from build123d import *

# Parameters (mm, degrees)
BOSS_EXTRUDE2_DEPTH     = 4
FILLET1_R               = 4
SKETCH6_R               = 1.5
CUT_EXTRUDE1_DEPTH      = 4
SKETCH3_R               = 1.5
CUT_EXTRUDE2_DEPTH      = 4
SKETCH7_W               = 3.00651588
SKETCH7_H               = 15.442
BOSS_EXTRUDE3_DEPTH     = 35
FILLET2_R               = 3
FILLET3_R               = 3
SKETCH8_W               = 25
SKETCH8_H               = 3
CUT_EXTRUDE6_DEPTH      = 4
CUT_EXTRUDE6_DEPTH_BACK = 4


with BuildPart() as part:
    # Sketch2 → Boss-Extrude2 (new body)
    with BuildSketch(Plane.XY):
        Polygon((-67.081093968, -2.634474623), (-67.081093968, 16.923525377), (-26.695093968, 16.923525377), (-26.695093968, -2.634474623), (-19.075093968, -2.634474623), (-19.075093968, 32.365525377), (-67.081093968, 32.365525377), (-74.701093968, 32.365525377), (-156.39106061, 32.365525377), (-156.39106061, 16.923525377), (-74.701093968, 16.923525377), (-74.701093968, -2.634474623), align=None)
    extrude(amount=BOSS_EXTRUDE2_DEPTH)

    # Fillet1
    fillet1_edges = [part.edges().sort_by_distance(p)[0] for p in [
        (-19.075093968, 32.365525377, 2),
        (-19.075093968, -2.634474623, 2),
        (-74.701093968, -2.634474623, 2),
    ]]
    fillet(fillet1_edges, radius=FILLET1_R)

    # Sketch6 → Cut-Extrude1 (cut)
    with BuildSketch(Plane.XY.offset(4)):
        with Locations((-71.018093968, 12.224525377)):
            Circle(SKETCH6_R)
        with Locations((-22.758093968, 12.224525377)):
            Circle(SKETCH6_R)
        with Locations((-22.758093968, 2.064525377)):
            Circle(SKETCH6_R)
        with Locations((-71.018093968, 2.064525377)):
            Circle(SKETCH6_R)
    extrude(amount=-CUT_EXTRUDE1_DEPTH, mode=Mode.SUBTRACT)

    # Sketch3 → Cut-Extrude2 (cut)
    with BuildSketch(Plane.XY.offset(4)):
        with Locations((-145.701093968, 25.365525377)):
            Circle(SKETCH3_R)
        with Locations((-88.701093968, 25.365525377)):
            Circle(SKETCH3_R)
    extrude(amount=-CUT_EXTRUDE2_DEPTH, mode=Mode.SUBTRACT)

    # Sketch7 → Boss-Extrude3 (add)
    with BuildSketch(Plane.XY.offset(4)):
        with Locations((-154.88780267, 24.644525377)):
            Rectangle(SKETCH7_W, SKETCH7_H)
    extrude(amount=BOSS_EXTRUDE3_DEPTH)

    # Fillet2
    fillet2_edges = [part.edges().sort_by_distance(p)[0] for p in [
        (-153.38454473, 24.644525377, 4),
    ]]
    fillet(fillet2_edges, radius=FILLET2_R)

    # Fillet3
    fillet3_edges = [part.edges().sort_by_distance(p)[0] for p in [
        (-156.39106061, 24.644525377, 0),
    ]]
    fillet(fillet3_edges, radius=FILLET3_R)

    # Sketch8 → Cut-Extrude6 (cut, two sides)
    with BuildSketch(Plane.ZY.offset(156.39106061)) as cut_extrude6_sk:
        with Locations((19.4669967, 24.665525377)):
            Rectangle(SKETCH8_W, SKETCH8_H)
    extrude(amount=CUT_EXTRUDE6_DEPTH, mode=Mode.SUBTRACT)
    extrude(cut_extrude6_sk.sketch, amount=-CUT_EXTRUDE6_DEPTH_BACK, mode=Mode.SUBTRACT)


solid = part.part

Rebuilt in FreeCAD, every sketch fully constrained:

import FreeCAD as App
import Part
import Sketcher

V = App.Vector
Q = App.Units.Quantity


def edges_at(feature, points):
    """Names of the edges that pass closest to the given points."""
    edges = feature.Shape.Edges
    near = lambda p: min(range(len(edges)), key=lambda i: edges[i].distToShape(Part.Vertex(*p))[0])
    return sorted({f"Edge{near(p) + 1}" for p in points})


def add_polygon(sketch, points):
    """Adds a closed chain of lines whose ends are joined by coincident constraints."""
    first, n = sketch.GeometryCount, len(points)
    for a, b in zip(points, points[1:] + points[:1]):
        sketch.addGeometry(Part.LineSegment(App.Vector(*a, 0), App.Vector(*b, 0)), False)
    for i in range(n):
        sketch.addConstraint(Sketcher.Constraint("Coincident", first + i, 2, first + (i + 1) % n, 1))

doc = App.newDocument("Part")
body = doc.addObject("PartDesign::Body", "Body")

sketch1 = doc.addObject("Sketcher::SketchObject", "Sketch")
body.addObject(sketch1)
sketch1.AttachmentSupport = (doc.XY_Plane, [""])
sketch1.MapMode = "FlatFace"
add_polygon(sketch1, [(-67, -3), (-67, 17), (-27, 17), (-27, -3), (-19, -3), (-19, 32), (-156, 32), (-156, 17), (-75, 17), (-75, -3)])
sketch1.addConstraint(Sketcher.Constraint("Vertical", 0))
sketch1.addConstraint(Sketcher.Constraint("Horizontal", 1))
sketch1.addConstraint(Sketcher.Constraint("Vertical", 2))
sketch1.addConstraint(Sketcher.Constraint("Horizontal", 3))
sketch1.addConstraint(Sketcher.Constraint("Vertical", 4))
sketch1.addConstraint(Sketcher.Constraint("Horizontal", 5))
sketch1.addConstraint(Sketcher.Constraint("Vertical", 6))
sketch1.addConstraint(Sketcher.Constraint("Horizontal", 7))
sketch1.addConstraint(Sketcher.Constraint("Vertical", 8))
sketch1.addConstraint(Sketcher.Constraint("Horizontal", 9))
sketch1.addConstraint(Sketcher.Constraint("Horizontal", 1, 2, 6, 2))
sketch1.addConstraint(Sketcher.Constraint("Horizontal", 3, 2, 8, 2))
sketch1.addConstraint(Sketcher.Constraint("Equal", 3, 9))
sketch1.addConstraint(Sketcher.Constraint("DistanceY", 4, 1, 4, 2, Q("35 mm")))
sketch1.addConstraint(Sketcher.Constraint("DistanceX", 3, 1, 3, 2, Q("7.62 mm")))
sketch1.addConstraint(Sketcher.Constraint("DistanceX", 1, 1, 1, 2, Q("40.386 mm")))
sketch1.addConstraint(Sketcher.Constraint("DistanceY", 0, 1, 0, 2, Q("19.558 mm")))
sketch1.addConstraint(Sketcher.Constraint("DistanceX", 5, 2, 5, 1, Q("137.315967 mm")))
sketch1.addConstraint(Sketcher.Constraint("DistanceX", 5, 2, -1, 1, Q("156.391061 mm")))
sketch1.addConstraint(Sketcher.Constraint("DistanceY", -1, 1, 0, 2, Q("16.923525 mm")))
pad1 = doc.addObject("PartDesign::Pad", "Pad")
body.addObject(pad1)
pad1.Profile = sketch1
pad1.Length = 4
doc.recompute()

fillet = doc.addObject("PartDesign::Fillet", "Fillet")
body.addObject(fillet)
fillet.Base = (pad1, edges_at(pad1, [(-19.075, 32.366, 2), (-19.075, -2.634, 2), (-74.701, -2.634, 2)]))
fillet.Radius = 4

sketch2 = doc.addObject("Sketcher::SketchObject", "Sketch001")
body.addObject(sketch2)
sketch2.AttachmentSupport = (doc.XY_Plane, [""])
sketch2.MapMode = "FlatFace"
sketch2.AttachmentOffset = App.Placement(V(0, 0, 4), App.Rotation())
sketch2.addGeometry(Part.Circle(V(-71, 12.2, 0), V(0, 0, 1), 1.5), False)
sketch2.addGeometry(Part.Circle(V(-22.8, 12.2, 0), V(0, 0, 1), 1.5), False)
sketch2.addGeometry(Part.Circle(V(-22.8, 2.1, 0), V(0, 0, 1), 1.5), False)
sketch2.addGeometry(Part.Circle(V(-71, 2.1, 0), V(0, 0, 1), 1.5), False)
sketch2.addConstraint(Sketcher.Constraint("Equal", 0, 1))
sketch2.addConstraint(Sketcher.Constraint("Equal", 1, 2))
sketch2.addConstraint(Sketcher.Constraint("Equal", 2, 3))
sketch2.addConstraint(Sketcher.Constraint("Horizontal", 0, 3, 1, 3))
sketch2.addConstraint(Sketcher.Constraint("Horizontal", 2, 3, 3, 3))
sketch2.addConstraint(Sketcher.Constraint("Vertical", 1, 3, 2, 3))
sketch2.addConstraint(Sketcher.Constraint("Vertical", 0, 3, 3, 3))
sketch2.addConstraint(Sketcher.Constraint("Diameter", 0, Q("3 mm")))
sketch2.addConstraint(Sketcher.Constraint("DistanceX", 0, 3, 1, 3, Q("48.26 mm")))
sketch2.addConstraint(Sketcher.Constraint("DistanceY", 2, 3, 1, 3, Q("10.16 mm")))
sketch2.addConstraint(Sketcher.Constraint("DistanceX", 0, 3, -1, 1, Q("71.018094 mm")))
sketch2.addConstraint(Sketcher.Constraint("DistanceY", -1, 1, 0, 3, Q("12.224525 mm")))
pocket1 = doc.addObject("PartDesign::Pocket", "Pocket")
body.addObject(pocket1)
pocket1.Profile = sketch2
pocket1.Length = 4

sketch3 = doc.addObject("Sketcher::SketchObject", "Sketch002")
body.addObject(sketch3)
sketch3.AttachmentSupport = (doc.XY_Plane, [""])
sketch3.MapMode = "FlatFace"
sketch3.AttachmentOffset = App.Placement(V(0, 0, 4), App.Rotation())
sketch3.addGeometry(Part.Circle(V(-145.7, 25.4, 0), V(0, 0, 1), 1.5), False)
sketch3.addGeometry(Part.Circle(V(-88.7, 25.4, 0), V(0, 0, 1), 1.5), False)
sketch3.addConstraint(Sketcher.Constraint("Equal", 0, 1))
sketch3.addConstraint(Sketcher.Constraint("Horizontal", 0, 3, 1, 3))
sketch3.addConstraint(Sketcher.Constraint("Diameter", 0, Q("3 mm")))
sketch3.addConstraint(Sketcher.Constraint("DistanceX", 0, 3, 1, 3, Q("57 mm")))
sketch3.addConstraint(Sketcher.Constraint("DistanceX", 0, 3, -1, 1, Q("145.701094 mm")))
sketch3.addConstraint(Sketcher.Constraint("DistanceY", -1, 1, 0, 3, Q("25.365525 mm")))
pocket2 = doc.addObject("PartDesign::Pocket", "Pocket001")
body.addObject(pocket2)
pocket2.Profile = sketch3
pocket2.Length = 4

sketch4 = doc.addObject("Sketcher::SketchObject", "Sketch003")
body.addObject(sketch4)
sketch4.AttachmentSupport = (doc.XY_Plane, [""])
sketch4.MapMode = "FlatFace"
sketch4.AttachmentOffset = App.Placement(V(0, 0, 4), App.Rotation())
add_polygon(sketch4, [(-156.4, 32.4), (-156.4, 16.9), (-153.4, 16.9), (-153.4, 32.4)])
sketch4.addConstraint(Sketcher.Constraint("Vertical", 0))
sketch4.addConstraint(Sketcher.Constraint("Horizontal", 1))
sketch4.addConstraint(Sketcher.Constraint("Vertical", 2))
sketch4.addConstraint(Sketcher.Constraint("Horizontal", 3))
sketch4.addConstraint(Sketcher.Constraint("DistanceY", 0, 2, 0, 1, Q("15.442 mm")))
sketch4.addConstraint(Sketcher.Constraint("DistanceX", 1, 1, 1, 2, Q("3.006516 mm")))
sketch4.addConstraint(Sketcher.Constraint("DistanceX", 0, 2, -1, 1, Q("156.391061 mm")))
sketch4.addConstraint(Sketcher.Constraint("DistanceY", -1, 1, 0, 2, Q("16.923525 mm")))
pad2 = doc.addObject("PartDesign::Pad", "Pad001")
body.addObject(pad2)
pad2.Profile = sketch4
pad2.Length = 35
doc.recompute()

fillet2 = doc.addObject("PartDesign::Fillet", "Fillet001")
body.addObject(fillet2)
fillet2.Base = (pad2, edges_at(pad2, [(-153.385, 24.645, 4)]))
fillet2.Radius = 3
doc.recompute()

fillet3 = doc.addObject("PartDesign::Fillet", "Fillet002")
body.addObject(fillet3)
fillet3.Base = (fillet2, edges_at(fillet2, [(-156.391, 24.645, 0)]))
fillet3.Radius = 3

sketch5 = doc.addObject("Sketcher::SketchObject", "Sketch004")
body.addObject(sketch5)
sketch5.AttachmentSupport = (doc.YZ_Plane, [""])
sketch5.MapMode = "FlatFace"
sketch5.AttachmentOffset = App.Placement(V(0, 0, -156.391061), App.Rotation())
add_polygon(sketch5, [(26.2, 7), (23.2, 7), (23.2, 32), (26.2, 32)])
sketch5.addConstraint(Sketcher.Constraint("Horizontal", 0))
sketch5.addConstraint(Sketcher.Constraint("Vertical", 1))
sketch5.addConstraint(Sketcher.Constraint("Horizontal", 2))
sketch5.addConstraint(Sketcher.Constraint("Vertical", 3))
sketch5.addConstraint(Sketcher.Constraint("DistanceX", 0, 2, 0, 1, Q("3 mm")))
sketch5.addConstraint(Sketcher.Constraint("DistanceY", 1, 1, 1, 2, Q("25 mm")))
sketch5.addConstraint(Sketcher.Constraint("DistanceX", -1, 1, 0, 2, Q("23.165525 mm")))
sketch5.addConstraint(Sketcher.Constraint("DistanceY", -1, 1, 0, 2, Q("6.966997 mm")))
pocket3 = doc.addObject("PartDesign::Pocket", "Pocket002")
body.addObject(pocket3)
pocket3.Profile = sketch5
pocket3.Type = "ThroughAll"
pocket3.Midplane = True

doc.recompute()
